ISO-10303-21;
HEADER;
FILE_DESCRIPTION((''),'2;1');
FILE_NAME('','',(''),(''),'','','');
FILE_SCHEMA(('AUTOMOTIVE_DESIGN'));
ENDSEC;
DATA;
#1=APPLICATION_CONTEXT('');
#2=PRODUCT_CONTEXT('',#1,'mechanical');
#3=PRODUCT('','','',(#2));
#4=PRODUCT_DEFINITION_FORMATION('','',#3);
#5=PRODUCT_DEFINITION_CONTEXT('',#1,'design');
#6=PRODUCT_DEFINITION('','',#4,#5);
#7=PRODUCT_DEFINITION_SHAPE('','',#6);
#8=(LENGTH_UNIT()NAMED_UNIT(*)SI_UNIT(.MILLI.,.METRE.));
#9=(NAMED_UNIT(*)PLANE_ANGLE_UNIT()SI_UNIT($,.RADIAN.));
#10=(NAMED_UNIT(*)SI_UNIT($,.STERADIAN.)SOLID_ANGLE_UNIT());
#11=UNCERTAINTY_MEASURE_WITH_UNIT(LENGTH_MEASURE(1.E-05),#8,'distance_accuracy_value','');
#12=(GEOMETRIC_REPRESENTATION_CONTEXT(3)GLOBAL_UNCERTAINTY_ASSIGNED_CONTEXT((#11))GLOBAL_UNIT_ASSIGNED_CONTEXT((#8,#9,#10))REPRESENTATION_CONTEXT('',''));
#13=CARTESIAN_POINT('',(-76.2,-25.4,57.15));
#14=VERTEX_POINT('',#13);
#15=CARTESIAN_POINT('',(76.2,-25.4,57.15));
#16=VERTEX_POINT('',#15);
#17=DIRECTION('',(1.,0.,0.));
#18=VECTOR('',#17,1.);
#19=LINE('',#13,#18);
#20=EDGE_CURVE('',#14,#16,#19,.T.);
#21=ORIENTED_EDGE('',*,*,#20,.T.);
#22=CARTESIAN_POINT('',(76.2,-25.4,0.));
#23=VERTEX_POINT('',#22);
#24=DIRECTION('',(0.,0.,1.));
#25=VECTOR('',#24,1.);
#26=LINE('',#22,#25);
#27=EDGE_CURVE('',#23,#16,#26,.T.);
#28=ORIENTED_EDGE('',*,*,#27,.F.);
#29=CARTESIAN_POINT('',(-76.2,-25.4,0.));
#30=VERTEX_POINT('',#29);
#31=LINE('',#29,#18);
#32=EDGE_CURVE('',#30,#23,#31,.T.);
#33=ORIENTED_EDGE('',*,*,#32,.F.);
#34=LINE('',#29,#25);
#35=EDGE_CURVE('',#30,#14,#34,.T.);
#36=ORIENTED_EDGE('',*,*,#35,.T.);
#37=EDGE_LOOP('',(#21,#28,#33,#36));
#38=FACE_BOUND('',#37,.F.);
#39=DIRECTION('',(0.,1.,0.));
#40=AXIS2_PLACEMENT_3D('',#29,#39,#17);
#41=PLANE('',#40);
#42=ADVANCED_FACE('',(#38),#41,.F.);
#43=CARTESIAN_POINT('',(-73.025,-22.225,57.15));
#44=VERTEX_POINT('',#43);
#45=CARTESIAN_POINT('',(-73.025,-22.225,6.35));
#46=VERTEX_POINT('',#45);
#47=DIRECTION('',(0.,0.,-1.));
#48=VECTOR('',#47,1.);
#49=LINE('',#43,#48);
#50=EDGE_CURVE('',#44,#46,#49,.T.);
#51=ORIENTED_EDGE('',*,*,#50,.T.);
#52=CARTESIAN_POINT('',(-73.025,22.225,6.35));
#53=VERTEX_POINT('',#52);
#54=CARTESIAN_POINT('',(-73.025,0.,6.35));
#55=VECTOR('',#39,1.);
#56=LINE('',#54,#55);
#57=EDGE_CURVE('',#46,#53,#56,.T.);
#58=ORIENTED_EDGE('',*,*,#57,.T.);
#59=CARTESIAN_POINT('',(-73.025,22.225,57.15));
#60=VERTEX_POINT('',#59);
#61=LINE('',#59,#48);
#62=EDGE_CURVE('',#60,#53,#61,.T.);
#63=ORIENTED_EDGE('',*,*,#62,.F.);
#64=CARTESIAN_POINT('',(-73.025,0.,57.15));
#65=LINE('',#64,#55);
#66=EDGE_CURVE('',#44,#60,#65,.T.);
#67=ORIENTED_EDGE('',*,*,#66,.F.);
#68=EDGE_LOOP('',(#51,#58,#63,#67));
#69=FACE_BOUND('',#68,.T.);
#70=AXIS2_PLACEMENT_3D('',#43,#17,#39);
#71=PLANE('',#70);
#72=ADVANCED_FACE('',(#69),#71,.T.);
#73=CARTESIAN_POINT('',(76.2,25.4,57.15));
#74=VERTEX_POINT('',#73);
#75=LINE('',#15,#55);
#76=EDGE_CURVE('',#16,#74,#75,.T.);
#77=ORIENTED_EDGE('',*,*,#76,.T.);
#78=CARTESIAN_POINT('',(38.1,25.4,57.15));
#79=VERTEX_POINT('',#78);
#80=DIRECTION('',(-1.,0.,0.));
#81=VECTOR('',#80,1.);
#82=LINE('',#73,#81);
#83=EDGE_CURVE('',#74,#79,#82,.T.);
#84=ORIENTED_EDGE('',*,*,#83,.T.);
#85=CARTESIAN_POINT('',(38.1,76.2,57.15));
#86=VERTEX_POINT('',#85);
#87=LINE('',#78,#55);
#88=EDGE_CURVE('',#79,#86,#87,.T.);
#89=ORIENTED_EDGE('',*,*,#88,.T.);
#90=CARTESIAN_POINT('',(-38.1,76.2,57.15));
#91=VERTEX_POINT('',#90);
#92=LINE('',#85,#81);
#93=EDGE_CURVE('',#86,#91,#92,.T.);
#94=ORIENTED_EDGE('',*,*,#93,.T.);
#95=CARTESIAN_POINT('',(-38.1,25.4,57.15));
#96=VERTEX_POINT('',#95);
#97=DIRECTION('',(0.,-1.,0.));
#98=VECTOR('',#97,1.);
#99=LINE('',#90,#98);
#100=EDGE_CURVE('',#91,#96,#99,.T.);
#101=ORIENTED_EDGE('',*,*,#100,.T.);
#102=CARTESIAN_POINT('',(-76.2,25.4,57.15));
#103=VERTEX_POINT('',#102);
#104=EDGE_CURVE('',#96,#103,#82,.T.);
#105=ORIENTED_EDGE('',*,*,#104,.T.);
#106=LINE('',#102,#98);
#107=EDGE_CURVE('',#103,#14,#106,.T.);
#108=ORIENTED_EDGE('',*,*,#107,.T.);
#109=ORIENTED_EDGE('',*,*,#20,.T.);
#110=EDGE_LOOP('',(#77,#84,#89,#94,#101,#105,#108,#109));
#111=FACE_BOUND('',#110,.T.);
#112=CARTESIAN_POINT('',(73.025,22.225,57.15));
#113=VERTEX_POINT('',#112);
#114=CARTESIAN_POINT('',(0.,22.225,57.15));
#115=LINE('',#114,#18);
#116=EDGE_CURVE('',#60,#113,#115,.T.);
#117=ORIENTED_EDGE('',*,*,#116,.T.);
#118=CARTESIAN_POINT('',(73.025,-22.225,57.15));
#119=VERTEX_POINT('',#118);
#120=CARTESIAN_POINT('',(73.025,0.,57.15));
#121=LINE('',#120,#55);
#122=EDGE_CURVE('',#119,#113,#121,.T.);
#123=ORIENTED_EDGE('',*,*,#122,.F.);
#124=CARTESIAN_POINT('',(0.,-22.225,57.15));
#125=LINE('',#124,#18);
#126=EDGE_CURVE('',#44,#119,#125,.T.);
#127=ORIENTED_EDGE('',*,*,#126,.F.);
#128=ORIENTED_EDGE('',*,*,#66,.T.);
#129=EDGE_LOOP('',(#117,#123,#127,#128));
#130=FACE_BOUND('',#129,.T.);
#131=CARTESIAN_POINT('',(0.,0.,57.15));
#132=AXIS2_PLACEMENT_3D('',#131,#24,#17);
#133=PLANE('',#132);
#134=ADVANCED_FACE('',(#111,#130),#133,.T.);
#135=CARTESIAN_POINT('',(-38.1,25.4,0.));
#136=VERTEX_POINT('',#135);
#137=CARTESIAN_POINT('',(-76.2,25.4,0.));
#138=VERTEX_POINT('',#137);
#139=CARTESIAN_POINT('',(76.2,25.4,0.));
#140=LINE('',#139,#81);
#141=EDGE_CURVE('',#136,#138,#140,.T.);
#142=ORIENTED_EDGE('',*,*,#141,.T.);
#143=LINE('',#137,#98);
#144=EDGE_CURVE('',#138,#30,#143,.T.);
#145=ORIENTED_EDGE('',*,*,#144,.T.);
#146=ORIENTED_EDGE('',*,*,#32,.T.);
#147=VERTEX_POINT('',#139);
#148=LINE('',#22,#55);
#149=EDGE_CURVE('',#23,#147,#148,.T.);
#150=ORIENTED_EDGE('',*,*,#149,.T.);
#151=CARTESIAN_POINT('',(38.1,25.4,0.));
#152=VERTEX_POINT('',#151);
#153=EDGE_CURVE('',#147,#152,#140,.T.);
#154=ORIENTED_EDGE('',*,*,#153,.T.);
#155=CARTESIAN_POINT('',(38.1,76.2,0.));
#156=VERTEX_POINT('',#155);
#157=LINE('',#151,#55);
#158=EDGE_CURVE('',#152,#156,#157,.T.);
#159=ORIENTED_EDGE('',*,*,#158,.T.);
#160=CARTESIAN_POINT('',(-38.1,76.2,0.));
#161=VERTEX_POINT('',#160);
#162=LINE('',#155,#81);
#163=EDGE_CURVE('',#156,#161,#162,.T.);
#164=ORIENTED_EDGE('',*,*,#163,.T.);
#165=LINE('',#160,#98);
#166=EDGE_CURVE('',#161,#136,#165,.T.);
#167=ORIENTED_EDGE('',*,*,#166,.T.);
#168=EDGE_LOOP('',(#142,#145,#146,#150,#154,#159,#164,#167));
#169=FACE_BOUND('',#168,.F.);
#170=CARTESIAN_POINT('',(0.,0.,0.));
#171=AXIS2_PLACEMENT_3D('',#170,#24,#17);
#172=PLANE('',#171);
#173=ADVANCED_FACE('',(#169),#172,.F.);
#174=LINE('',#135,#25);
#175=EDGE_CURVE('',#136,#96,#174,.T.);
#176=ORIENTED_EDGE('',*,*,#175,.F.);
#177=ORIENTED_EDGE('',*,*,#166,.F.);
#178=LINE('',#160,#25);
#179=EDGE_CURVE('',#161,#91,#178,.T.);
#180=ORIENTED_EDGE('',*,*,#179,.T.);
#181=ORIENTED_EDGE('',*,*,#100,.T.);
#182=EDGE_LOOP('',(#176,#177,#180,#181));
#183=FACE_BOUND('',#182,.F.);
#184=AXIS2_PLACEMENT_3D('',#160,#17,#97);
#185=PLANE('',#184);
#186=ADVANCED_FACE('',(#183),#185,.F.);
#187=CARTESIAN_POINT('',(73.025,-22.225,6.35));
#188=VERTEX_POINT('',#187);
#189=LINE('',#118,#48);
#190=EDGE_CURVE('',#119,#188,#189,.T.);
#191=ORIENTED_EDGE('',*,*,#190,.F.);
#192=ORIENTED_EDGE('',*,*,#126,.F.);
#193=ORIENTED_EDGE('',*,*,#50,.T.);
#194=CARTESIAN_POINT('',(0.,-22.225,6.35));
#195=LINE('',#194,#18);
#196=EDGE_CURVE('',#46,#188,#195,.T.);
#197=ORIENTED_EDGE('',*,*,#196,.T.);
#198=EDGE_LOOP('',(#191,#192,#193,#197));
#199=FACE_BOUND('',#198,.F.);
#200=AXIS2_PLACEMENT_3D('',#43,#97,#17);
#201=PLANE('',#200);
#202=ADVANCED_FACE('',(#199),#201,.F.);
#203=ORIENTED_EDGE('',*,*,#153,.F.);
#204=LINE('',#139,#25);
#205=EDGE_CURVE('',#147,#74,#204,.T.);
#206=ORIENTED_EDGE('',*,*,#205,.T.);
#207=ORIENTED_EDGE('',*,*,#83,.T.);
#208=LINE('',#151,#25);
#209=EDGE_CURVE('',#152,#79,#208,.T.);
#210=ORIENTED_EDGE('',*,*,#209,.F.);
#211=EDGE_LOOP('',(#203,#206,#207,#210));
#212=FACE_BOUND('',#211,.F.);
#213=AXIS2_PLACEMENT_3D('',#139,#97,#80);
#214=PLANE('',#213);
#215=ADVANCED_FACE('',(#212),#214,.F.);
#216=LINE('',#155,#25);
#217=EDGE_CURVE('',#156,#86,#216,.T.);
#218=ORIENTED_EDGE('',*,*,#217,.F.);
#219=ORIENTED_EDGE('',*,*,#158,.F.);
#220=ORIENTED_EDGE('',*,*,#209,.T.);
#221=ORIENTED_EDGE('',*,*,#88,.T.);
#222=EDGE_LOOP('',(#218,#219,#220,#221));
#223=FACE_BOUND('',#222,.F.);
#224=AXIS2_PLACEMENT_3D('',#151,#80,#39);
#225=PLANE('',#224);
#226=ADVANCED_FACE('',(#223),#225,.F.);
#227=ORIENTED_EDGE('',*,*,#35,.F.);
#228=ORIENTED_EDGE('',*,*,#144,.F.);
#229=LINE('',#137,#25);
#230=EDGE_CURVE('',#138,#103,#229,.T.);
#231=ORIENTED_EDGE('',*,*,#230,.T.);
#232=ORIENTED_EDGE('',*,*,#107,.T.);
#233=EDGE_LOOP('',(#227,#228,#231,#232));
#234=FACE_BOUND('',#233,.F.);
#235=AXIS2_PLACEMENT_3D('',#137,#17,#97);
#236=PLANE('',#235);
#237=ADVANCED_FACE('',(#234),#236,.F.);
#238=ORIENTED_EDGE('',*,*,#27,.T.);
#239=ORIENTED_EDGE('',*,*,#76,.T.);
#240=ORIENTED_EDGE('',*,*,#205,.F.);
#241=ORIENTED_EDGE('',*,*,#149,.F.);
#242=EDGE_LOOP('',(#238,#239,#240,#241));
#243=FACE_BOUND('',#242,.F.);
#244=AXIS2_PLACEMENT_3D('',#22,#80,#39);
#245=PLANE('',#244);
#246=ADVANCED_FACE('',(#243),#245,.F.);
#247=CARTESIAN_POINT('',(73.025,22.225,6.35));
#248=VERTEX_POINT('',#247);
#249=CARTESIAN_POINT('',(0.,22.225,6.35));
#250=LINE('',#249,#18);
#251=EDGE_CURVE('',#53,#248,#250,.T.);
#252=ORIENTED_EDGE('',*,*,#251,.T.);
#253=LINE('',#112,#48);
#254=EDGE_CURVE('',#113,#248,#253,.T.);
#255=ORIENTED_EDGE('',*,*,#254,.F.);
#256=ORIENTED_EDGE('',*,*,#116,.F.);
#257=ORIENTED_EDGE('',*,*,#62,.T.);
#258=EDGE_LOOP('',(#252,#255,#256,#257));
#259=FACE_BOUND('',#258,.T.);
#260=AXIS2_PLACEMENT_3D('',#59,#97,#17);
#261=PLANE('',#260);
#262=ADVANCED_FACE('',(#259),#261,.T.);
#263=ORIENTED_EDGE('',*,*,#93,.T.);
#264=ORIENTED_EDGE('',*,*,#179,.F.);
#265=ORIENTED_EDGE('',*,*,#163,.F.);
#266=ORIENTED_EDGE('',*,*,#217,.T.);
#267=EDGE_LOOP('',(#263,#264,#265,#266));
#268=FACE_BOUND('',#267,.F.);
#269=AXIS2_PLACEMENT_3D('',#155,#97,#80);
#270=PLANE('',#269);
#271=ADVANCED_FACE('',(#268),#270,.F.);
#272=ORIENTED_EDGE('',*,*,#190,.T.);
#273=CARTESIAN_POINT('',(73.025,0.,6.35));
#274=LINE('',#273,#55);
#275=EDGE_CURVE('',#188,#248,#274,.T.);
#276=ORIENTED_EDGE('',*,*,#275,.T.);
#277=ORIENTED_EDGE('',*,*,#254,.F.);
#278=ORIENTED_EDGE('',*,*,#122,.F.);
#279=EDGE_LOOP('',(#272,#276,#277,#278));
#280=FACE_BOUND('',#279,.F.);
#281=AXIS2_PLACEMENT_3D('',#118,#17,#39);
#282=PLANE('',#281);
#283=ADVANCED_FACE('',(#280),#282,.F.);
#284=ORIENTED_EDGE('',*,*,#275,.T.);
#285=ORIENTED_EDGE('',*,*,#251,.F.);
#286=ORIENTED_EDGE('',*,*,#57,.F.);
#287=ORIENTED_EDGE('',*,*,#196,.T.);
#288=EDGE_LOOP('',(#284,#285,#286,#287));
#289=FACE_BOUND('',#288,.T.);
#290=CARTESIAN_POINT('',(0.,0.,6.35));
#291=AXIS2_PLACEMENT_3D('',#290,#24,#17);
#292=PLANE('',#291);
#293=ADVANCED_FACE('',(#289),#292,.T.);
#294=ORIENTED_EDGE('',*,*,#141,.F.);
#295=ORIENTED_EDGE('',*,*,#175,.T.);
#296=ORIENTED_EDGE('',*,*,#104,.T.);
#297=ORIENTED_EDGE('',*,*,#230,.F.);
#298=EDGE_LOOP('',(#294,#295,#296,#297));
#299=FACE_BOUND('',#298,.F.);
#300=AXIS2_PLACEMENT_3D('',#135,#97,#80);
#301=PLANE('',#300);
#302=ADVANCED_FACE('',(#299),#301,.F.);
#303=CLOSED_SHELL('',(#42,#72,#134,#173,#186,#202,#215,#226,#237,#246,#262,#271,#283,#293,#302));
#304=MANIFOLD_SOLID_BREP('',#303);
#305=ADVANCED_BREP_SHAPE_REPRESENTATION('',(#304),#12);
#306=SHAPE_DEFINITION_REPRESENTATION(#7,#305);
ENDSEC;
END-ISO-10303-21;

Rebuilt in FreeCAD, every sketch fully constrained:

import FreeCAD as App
import Part
import Sketcher
from FreeCAD import Vector
Q = App.Units.Quantity

doc = App.newDocument("Part")
body = doc.addObject("PartDesign::Body", "Body")

# Sketch on XY plane
sketch1 = body.newObject("Sketcher::SketchObject", "Sketch")
sketch1.AttachmentSupport = (doc.getObject("XY_Plane"), [""])
sketch1.MapMode = "FlatFace"
sketch1.addGeometry(Part.LineSegment(Vector(76, -25, 0), Vector(76, 25, 0)), False)
sketch1.addGeometry(Part.LineSegment(Vector(76, 25, 0), Vector(38, 25, 0)), False)
sketch1.addGeometry(Part.LineSegment(Vector(38, 25, 0), Vector(38, 76, 0)), False)
sketch1.addGeometry(Part.LineSegment(Vector(38, 76, 0), Vector(-38, 76, 0)), False)
sketch1.addGeometry(Part.LineSegment(Vector(-38, 76, 0), Vector(-38, 25, 0)), False)
sketch1.addGeometry(Part.LineSegment(Vector(-38, 25, 0), Vector(-76, 25, 0)), False)
sketch1.addGeometry(Part.LineSegment(Vector(-76, 25, 0), Vector(-76, -25, 0)), False)
sketch1.addGeometry(Part.LineSegment(Vector(-76, -25, 0), Vector(76, -25, 0)), False)
sketch1.addConstraint(Sketcher.Constraint("Coincident", 0, 2, 1, 1))
sketch1.addConstraint(Sketcher.Constraint("Coincident", 1, 2, 2, 1))
sketch1.addConstraint(Sketcher.Constraint("Coincident", 2, 2, 3, 1))
sketch1.addConstraint(Sketcher.Constraint("Coincident", 3, 2, 4, 1))
sketch1.addConstraint(Sketcher.Constraint("Coincident", 4, 2, 5, 1))
sketch1.addConstraint(Sketcher.Constraint("Coincident", 5, 2, 6, 1))
sketch1.addConstraint(Sketcher.Constraint("Coincident", 6, 2, 7, 1))
sketch1.addConstraint(Sketcher.Constraint("Coincident", 7, 2, 0, 1))
sketch1.addConstraint(Sketcher.Constraint("Vertical", 0))
sketch1.addConstraint(Sketcher.Constraint("Horizontal", 1))
sketch1.addConstraint(Sketcher.Constraint("Vertical", 2))
sketch1.addConstraint(Sketcher.Constraint("Horizontal", 3))
sketch1.addConstraint(Sketcher.Constraint("Vertical", 4))
sketch1.addConstraint(Sketcher.Constraint("Horizontal", 5))
sketch1.addConstraint(Sketcher.Constraint("Vertical", 6))
sketch1.addConstraint(Sketcher.Constraint("Horizontal", 7))
sketch1.addConstraint(Sketcher.Constraint("Symmetric", 0, 2, 6, 2, -1, 1))
sketch1.addConstraint(Sketcher.Constraint("Symmetric", 1, 2, 4, 2, -2))
sketch1.addConstraint(Sketcher.Constraint("Equal", 0, 2))
sketch1.addConstraint(Sketcher.Constraint("DistanceX", 3, 2, 3, 1, Q("3 in")))
sketch1.addConstraint(Sketcher.Constraint("DistanceX", 7, 1, 7, 2, Q("6 in")))
sketch1.addConstraint(Sketcher.Constraint("DistanceY", 0, 1, 0, 2, Q("2 in")))
pad1 = body.newObject("PartDesign::Pad", "Pad")
pad1.Profile = sketch1
pad1.Length = Q("2.25 in")

# Sketch on XY plane
sketch2 = body.newObject("Sketcher::SketchObject", "Sketch001")
sketch2.AttachmentSupport = (doc.getObject("XY_Plane"), [""])
sketch2.MapMode = "FlatFace"
sketch2.AttachmentOffset = App.Placement(Vector(0, 0, 2.25 * 25.4), App.Rotation())
sketch2.addGeometry(Part.LineSegment(Vector(-73, 22, 0), Vector(-73, -22, 0)), False)
sketch2.addGeometry(Part.LineSegment(Vector(-73, -22, 0), Vector(73, -22, 0)), False)
sketch2.addGeometry(Part.LineSegment(Vector(73, -22, 0), Vector(73, 22, 0)), False)
sketch2.addGeometry(Part.LineSegment(Vector(73, 22, 0), Vector(-73, 22, 0)), False)
sketch2.addConstraint(Sketcher.Constraint("Coincident", 0, 2, 1, 1))
sketch2.addConstraint(Sketcher.Constraint("Coincident", 1, 2, 2, 1))
sketch2.addConstraint(Sketcher.Constraint("Coincident", 2, 2, 3, 1))
sketch2.addConstraint(Sketcher.Constraint("Coincident", 3, 2, 0, 1))
sketch2.addConstraint(Sketcher.Constraint("Vertical", 0))
sketch2.addConstraint(Sketcher.Constraint("Horizontal", 1))
sketch2.addConstraint(Sketcher.Constraint("Vertical", 2))
sketch2.addConstraint(Sketcher.Constraint("Horizontal", 3))
sketch2.addConstraint(Sketcher.Constraint("Symmetric", 0, 2, 2, 2, -1, 1))
sketch2.addConstraint(Sketcher.Constraint("DistanceX", 1, 1, 1, 2, Q("5.75 in")))
sketch2.addConstraint(Sketcher.Constraint("DistanceY", 0, 2, 0, 1, Q("1.75 in")))
pocket1 = body.newObject("PartDesign::Pocket", "Pocket")
pocket1.Profile = sketch2
pocket1.Length = Q("2 in")

doc.recompute()
